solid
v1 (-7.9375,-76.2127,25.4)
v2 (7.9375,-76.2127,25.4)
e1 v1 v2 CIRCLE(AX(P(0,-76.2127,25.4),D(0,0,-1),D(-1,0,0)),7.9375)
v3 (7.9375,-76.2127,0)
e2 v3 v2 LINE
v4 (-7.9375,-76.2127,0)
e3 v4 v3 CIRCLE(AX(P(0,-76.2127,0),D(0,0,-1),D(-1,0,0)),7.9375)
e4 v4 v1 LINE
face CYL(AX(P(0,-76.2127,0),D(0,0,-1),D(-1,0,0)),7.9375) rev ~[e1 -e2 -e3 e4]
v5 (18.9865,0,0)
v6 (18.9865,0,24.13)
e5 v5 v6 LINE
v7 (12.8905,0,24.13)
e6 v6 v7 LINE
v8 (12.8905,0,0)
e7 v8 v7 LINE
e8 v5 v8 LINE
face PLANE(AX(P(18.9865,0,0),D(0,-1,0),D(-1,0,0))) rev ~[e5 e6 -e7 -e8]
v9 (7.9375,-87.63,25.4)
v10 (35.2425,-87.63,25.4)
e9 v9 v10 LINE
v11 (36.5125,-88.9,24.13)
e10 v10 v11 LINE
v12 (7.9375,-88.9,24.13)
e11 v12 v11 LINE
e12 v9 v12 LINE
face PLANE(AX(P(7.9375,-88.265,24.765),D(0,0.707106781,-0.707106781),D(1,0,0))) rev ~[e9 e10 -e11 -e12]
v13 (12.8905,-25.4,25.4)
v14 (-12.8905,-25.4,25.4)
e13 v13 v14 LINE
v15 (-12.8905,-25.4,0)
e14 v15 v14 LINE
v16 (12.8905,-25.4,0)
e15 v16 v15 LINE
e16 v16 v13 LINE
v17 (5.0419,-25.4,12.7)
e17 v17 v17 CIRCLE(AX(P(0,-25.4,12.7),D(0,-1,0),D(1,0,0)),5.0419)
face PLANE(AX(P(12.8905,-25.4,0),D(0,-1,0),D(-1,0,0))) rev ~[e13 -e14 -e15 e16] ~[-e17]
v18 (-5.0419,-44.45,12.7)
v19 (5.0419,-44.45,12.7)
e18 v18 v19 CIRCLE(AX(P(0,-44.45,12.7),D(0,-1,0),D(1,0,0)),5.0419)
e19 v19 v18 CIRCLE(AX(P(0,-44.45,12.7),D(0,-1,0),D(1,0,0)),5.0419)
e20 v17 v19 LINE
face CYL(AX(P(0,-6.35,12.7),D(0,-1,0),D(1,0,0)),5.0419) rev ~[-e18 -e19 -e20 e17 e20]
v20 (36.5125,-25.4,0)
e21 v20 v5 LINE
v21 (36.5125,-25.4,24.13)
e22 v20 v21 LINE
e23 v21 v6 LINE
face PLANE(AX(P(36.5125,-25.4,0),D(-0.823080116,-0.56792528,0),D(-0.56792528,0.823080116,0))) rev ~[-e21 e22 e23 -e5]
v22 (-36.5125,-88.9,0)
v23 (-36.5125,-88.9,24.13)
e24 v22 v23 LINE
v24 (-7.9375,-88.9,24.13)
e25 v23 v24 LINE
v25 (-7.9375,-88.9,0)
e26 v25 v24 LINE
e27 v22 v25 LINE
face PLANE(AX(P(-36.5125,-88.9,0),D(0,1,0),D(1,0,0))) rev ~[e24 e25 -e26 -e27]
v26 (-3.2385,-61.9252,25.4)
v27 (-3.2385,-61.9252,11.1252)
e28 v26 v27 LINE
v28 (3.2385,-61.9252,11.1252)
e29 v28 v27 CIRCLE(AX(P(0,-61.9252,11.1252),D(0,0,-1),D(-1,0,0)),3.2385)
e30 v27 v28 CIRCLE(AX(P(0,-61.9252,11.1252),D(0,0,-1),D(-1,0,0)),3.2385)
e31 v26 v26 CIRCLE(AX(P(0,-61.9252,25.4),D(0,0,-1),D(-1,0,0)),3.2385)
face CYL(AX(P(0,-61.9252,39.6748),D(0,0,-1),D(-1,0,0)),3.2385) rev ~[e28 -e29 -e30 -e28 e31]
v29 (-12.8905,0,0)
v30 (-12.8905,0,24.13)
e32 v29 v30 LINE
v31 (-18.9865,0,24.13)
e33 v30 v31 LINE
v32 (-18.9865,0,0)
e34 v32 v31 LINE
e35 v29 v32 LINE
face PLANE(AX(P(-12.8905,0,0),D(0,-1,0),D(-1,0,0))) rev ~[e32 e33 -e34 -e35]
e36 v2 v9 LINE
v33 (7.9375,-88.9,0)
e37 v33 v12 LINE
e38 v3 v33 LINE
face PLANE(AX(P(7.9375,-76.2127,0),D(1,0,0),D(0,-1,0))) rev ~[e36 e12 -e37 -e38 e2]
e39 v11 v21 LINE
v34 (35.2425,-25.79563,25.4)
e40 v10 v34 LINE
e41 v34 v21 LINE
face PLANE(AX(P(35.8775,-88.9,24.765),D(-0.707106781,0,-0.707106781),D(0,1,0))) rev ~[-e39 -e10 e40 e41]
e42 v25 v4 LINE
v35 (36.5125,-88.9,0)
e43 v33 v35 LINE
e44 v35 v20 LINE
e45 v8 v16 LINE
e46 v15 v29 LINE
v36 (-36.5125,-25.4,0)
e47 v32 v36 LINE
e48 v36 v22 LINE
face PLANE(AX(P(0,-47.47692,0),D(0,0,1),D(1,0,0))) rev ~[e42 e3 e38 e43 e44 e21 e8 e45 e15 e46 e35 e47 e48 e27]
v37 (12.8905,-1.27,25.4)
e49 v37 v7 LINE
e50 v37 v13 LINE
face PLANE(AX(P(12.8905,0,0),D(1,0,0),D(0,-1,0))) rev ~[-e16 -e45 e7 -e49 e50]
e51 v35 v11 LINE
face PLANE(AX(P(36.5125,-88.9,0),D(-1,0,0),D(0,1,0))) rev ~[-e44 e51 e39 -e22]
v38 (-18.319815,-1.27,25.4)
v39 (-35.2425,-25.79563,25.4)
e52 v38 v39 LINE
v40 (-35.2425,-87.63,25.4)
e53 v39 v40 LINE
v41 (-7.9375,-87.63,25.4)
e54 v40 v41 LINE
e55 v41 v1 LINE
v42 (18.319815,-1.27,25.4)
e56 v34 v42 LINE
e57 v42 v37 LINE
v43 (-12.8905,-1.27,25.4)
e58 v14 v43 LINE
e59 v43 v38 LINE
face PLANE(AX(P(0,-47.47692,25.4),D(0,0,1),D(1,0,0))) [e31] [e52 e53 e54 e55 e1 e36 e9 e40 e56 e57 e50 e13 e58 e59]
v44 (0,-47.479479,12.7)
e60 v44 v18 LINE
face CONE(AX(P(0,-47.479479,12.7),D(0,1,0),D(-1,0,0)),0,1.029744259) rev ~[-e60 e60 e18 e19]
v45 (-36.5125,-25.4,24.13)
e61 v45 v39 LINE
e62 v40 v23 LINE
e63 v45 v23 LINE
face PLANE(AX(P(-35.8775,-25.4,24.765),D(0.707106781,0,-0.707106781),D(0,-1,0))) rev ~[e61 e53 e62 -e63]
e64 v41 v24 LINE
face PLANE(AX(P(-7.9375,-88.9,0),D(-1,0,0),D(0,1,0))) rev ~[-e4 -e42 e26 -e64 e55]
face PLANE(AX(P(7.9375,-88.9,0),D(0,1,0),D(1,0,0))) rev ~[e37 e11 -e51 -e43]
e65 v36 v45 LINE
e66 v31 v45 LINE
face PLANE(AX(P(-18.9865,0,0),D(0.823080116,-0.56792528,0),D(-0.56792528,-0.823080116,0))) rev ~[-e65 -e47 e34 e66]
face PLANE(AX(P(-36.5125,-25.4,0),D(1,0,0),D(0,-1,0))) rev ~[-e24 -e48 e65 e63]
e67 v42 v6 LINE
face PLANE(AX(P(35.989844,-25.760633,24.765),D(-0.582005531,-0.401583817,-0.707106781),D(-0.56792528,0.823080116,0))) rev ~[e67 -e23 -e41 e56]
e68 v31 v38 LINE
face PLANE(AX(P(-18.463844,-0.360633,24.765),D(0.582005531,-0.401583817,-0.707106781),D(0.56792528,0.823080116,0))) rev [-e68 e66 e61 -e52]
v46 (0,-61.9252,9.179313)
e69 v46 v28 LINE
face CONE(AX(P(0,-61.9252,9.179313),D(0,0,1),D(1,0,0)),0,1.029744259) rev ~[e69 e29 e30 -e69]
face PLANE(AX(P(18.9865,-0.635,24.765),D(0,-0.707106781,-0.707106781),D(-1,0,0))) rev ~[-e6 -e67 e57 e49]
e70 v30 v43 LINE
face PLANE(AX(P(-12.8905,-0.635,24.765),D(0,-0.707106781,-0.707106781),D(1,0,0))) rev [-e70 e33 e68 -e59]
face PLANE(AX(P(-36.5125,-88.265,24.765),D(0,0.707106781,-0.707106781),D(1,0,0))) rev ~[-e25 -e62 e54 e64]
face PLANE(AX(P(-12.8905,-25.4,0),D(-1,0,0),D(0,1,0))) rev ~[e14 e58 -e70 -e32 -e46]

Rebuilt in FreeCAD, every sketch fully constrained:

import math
import FreeCAD as App
import Part
import Sketcher
from FreeCAD import Vector
Q = App.Units.Quantity


def edges_at(feature, points):
    """Names of the edges that pass closest to the given points."""
    edges = feature.Shape.Edges
    near = lambda p: min(range(len(edges)), key=lambda i: edges[i].distToShape(Part.Vertex(*p))[0])
    return sorted({f"Edge{near(p) + 1}" for p in points})

doc = App.newDocument("Part")
body = doc.addObject("PartDesign::Body", "Body")

# Sketch on XY plane
sketch1 = doc.addObject("Sketcher::SketchObject", "Sketch")
body.addObject(sketch1)
sketch1.AttachmentSupport = (doc.XY_Plane, [""])
sketch1.MapMode = "FlatFace"
sketch1.addGeometry(Part.LineSegment(Vector(-12.8905, 0, 0), Vector(-18.9865, 0, 0)), False)
sketch1.addGeometry(Part.LineSegment(Vector(-18.9865, 0, 0), Vector(-36.5125, -25.4, 0)), False)
sketch1.addGeometry(Part.LineSegment(Vector(-36.5125, -25.4, 0), Vector(-36.5125, -88.9, 0)), False)
sketch1.addGeometry(Part.LineSegment(Vector(-36.5125, -88.9, 0), Vector(-7.9375, -88.9, 0)), False)
sketch1.addGeometry(Part.LineSegment(Vector(-7.9375, -88.9, 0), Vector(-7.9375, -76.2127, 0)), False)
sketch1.addGeometry(Part.ArcOfCircle(Part.Circle(Vector(0, -76.2127, 0), Vector(0, 0, 1), 7.9375), math.radians(0), math.radians(180)), False)
sketch1.addGeometry(Part.LineSegment(Vector(7.9375, -76.2127, 0), Vector(7.9375, -88.9, 0)), False)
sketch1.addGeometry(Part.LineSegment(Vector(7.9375, -88.9, 0), Vector(36.5125, -88.9, 0)), False)
sketch1.addGeometry(Part.LineSegment(Vector(36.5125, -88.9, 0), Vector(36.5125, -25.4, 0)), False)
sketch1.addGeometry(Part.LineSegment(Vector(36.5125, -25.4, 0), Vector(18.9865, 0, 0)), False)
sketch1.addGeometry(Part.LineSegment(Vector(18.9865, 0, 0), Vector(12.8905, 0, 0)), False)
sketch1.addGeometry(Part.LineSegment(Vector(12.8905, 0, 0), Vector(12.8905, -25.4, 0)), False)
sketch1.addGeometry(Part.LineSegment(Vector(12.8905, -25.4, 0), Vector(-12.8905, -25.4, 0)), False)
sketch1.addGeometry(Part.LineSegment(Vector(-12.8905, -25.4, 0), Vector(-12.8905, 0, 0)), False)
sketch1.addConstraint(Sketcher.Constraint("Coincident", 0, 2, 1, 1))
sketch1.addConstraint(Sketcher.Constraint("Coincident", 1, 2, 2, 1))
sketch1.addConstraint(Sketcher.Constraint("Coincident", 2, 2, 3, 1))
sketch1.addConstraint(Sketcher.Constraint("Coincident", 3, 2, 4, 1))
sketch1.addConstraint(Sketcher.Constraint("Tangent", 4, 2, 5, 2))
sketch1.addConstraint(Sketcher.Constraint("Tangent", 5, 1, 6, 1))
sketch1.addConstraint(Sketcher.Constraint("Coincident", 6, 2, 7, 1))
sketch1.addConstraint(Sketcher.Constraint("Coincident", 7, 2, 8, 1))
sketch1.addConstraint(Sketcher.Constraint("Coincident", 8, 2, 9, 1))
sketch1.addConstraint(Sketcher.Constraint("Coincident", 9, 2, 10, 1))
sketch1.addConstraint(Sketcher.Constraint("Coincident", 10, 2, 11, 1))
sketch1.addConstraint(Sketcher.Constraint("Coincident", 11, 2, 12, 1))
sketch1.addConstraint(Sketcher.Constraint("Coincident", 12, 2, 13, 1))
sketch1.addConstraint(Sketcher.Constraint("Coincident", 13, 2, 0, 1))
sketch1.addConstraint(Sketcher.Constraint("Horizontal", 0))
sketch1.addConstraint(Sketcher.Constraint("Vertical", 2))
sketch1.addConstraint(Sketcher.Constraint("Horizontal", 3))
sketch1.addConstraint(Sketcher.Constraint("Vertical", 4))
sketch1.addConstraint(Sketcher.Constraint("Vertical", 6))
sketch1.addConstraint(Sketcher.Constraint("Horizontal", 7))
sketch1.addConstraint(Sketcher.Constraint("Vertical", 8))
sketch1.addConstraint(Sketcher.Constraint("Horizontal", 10))
sketch1.addConstraint(Sketcher.Constraint("Vertical", 11))
sketch1.addConstraint(Sketcher.Constraint("Horizontal", 12))
sketch1.addConstraint(Sketcher.Constraint("Vertical", 13))
sketch1.addConstraint(Sketcher.Constraint("Symmetric", 0, 2, 9, 2, -1, 1))
sketch1.addConstraint(Sketcher.Constraint("Symmetric", 3, 2, 6, 2, -2))
sketch1.addConstraint(Sketcher.Constraint("Symmetric", 1, 2, 8, 2, -2))
sketch1.addConstraint(Sketcher.Constraint("Symmetric", 10, 2, 13, 2, -2))
sketch1.addConstraint(Sketcher.Constraint("Horizontal", 8, 2, 11, 2))
sketch1.addConstraint(Sketcher.Constraint("DistanceY", 11, 2, 11, 1, Q("1 in")))
sketch1.addConstraint(Sketcher.Constraint("DistanceY", 2, 2, 2, 1, Q("2.5 in")))
sketch1.addConstraint(Sketcher.Constraint("Radius", 5, Q("0.3125 in")))
sketch1.addConstraint(Sketcher.Constraint("DistanceX", 0, 2, 0, 1, Q("0.24 in")))
sketch1.addConstraint(Sketcher.Constraint("DistanceX", 3, 1, 3, 2, Q("1.125 in")))
sketch1.addConstraint(Sketcher.Constraint("DistanceX", 12, 2, 12, 1, Q("1.015 in")))
sketch1.addConstraint(Sketcher.Constraint("DistanceY", 4, 1, 4, 2, Q("0.4995 in")))
pad1 = doc.addObject("PartDesign::Pad", "Pad")
body.addObject(pad1)
pad1.Profile = sketch1
pad1.Length = Q("1 in")

# Sketch on XZ plane
sketch2 = doc.addObject("Sketcher::SketchObject", "Sketch001")
body.addObject(sketch2)
sketch2.AttachmentSupport = (doc.XZ_Plane, [""])
sketch2.MapMode = "FlatFace"
sketch2.AttachmentOffset = App.Placement(Vector(0, 0, 1 * 25.4), App.Rotation())
sketch2.addGeometry(Part.Circle(Vector(0, 12.7, 0), Vector(0, 0, 1), 5.0419), False)
sketch2.addConstraint(Sketcher.Constraint("PointOnObject", 0, 3, -2))
sketch2.addConstraint(Sketcher.Constraint("Diameter", 0, Q("0.397 in")))
sketch2.addConstraint(Sketcher.Constraint("DistanceY", -1, 1, 0, 3, Q("0.5 in")))
doc.recompute()
hole = doc.addObject("PartDesign::Hole", "Hole")
body.addObject(hole)
hole.Profile = sketch2
hole.ThreadType = "None"
hole.Diameter = Q("0.397 in")
hole.DepthType = "Dimension"
hole.Depth = Q("0.75 in")
hole.DrillPoint = "Angled"
hole.DrillPointAngle = 118
hole.Reversed = True

# Sketch on XY plane
sketch3 = doc.addObject("Sketcher::SketchObject", "Sketch002")
body.addObject(sketch3)
sketch3.AttachmentSupport = (doc.XY_Plane, [""])
sketch3.MapMode = "FlatFace"
sketch3.AttachmentOffset = App.Placement(Vector(0, 0, 1 * 25.4), App.Rotation())
sketch3.addGeometry(Part.Circle(Vector(0, -61.9252, 0), Vector(0, 0, 1), 3.2385), False)
sketch3.addConstraint(Sketcher.Constraint("PointOnObject", 0, 3, -2))
sketch3.addConstraint(Sketcher.Constraint("Diameter", 0, Q("0.255 in")))
sketch3.addConstraint(Sketcher.Constraint("DistanceY", 0, 3, -1, 1, Q("2.438 in")))
doc.recompute()
hole2 = doc.addObject("PartDesign::Hole", "Hole001")
body.addObject(hole2)
hole2.Profile = sketch3
hole2.ThreadType = "None"
hole2.Diameter = Q("0.255 in")
hole2.DepthType = "Dimension"
hole2.Depth = Q("0.562 in")
hole2.DrillPoint = "Angled"
hole2.DrillPointAngle = 118
doc.recompute()

chamfer = doc.addObject("PartDesign::Chamfer", "Chamfer")
body.addObject(chamfer)
chamfer.Base = (hole2, edges_at(hole2, [
    (-22.225, -88.9, 25.4),
    (-15.938, 0, 25.4),
    (-27.75, -12.7, 25.4),
    (-36.513, -57.15, 25.4),
    (15.938, 0, 25.4),
    (27.75, -12.7, 25.4),
    (36.513, -57.15, 25.4),
    (22.225, -88.9, 25.4),
]))
chamfer.Size = Q("0.05 in")

doc.recompute()
